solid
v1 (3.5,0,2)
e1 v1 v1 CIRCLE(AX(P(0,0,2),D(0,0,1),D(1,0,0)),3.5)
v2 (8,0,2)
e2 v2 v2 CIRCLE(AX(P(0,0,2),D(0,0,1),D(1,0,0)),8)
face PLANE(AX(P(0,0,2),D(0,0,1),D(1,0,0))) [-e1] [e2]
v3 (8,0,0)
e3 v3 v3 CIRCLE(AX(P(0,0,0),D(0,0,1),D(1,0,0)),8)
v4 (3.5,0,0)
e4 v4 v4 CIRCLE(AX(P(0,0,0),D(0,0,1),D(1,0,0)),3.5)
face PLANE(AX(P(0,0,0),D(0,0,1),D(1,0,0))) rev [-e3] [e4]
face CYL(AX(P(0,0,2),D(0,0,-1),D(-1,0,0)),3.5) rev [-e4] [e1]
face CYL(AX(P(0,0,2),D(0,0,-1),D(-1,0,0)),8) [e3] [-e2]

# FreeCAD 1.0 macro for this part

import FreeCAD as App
import Part
import Sketcher
from FreeCAD import Vector

doc = App.newDocument("Part")
params = doc.addObject("Spreadsheet::Sheet", "Params")
for row, (alias, value) in enumerate([
    ("sketch1_diameter", "16 mm"),
    ("sketch1_diameter2", "7 mm"),
    ("pad1_length", "2 mm"),
], start=1):
    params.set(f"A{row}", alias)
    params.set(f"B{row}", "=" + value)
    params.setAlias(f"B{row}", alias)

body = doc.addObject("PartDesign::Body", "Body")

# Sketch on XY plane
sketch1 = doc.addObject("Sketcher::SketchObject", "Sketch")
body.addObject(sketch1)
sketch1.AttachmentSupport = (doc.XY_Plane, [""])
sketch1.MapMode = "FlatFace"
sketch1.addGeometry(Part.Circle(Vector(0, 0, 0), Vector(0, 0, 1), 8), False)
sketch1.addGeometry(Part.Circle(Vector(0, 0, 0), Vector(0, 0, 1), 3.5), False)
sketch1.addConstraint(Sketcher.Constraint("Coincident", 0, 3, -1, 1))
sketch1.addConstraint(Sketcher.Constraint("Coincident", 1, 3, -1, 1))
sketch1.addConstraint(Sketcher.Constraint("Diameter", 0, 16.0))
sketch1.addConstraint(Sketcher.Constraint("Diameter", 1, 7.0))
sketch1.setExpression("Constraints[2]", "Params.sketch1_diameter")
sketch1.setExpression("Constraints[3]", "Params.sketch1_diameter2")
pad1 = doc.addObject("PartDesign::Pad", "Pad")
body.addObject(pad1)
pad1.Profile = sketch1
pad1.setExpression("Length", "Params.pad1_length")

doc.recompute()
